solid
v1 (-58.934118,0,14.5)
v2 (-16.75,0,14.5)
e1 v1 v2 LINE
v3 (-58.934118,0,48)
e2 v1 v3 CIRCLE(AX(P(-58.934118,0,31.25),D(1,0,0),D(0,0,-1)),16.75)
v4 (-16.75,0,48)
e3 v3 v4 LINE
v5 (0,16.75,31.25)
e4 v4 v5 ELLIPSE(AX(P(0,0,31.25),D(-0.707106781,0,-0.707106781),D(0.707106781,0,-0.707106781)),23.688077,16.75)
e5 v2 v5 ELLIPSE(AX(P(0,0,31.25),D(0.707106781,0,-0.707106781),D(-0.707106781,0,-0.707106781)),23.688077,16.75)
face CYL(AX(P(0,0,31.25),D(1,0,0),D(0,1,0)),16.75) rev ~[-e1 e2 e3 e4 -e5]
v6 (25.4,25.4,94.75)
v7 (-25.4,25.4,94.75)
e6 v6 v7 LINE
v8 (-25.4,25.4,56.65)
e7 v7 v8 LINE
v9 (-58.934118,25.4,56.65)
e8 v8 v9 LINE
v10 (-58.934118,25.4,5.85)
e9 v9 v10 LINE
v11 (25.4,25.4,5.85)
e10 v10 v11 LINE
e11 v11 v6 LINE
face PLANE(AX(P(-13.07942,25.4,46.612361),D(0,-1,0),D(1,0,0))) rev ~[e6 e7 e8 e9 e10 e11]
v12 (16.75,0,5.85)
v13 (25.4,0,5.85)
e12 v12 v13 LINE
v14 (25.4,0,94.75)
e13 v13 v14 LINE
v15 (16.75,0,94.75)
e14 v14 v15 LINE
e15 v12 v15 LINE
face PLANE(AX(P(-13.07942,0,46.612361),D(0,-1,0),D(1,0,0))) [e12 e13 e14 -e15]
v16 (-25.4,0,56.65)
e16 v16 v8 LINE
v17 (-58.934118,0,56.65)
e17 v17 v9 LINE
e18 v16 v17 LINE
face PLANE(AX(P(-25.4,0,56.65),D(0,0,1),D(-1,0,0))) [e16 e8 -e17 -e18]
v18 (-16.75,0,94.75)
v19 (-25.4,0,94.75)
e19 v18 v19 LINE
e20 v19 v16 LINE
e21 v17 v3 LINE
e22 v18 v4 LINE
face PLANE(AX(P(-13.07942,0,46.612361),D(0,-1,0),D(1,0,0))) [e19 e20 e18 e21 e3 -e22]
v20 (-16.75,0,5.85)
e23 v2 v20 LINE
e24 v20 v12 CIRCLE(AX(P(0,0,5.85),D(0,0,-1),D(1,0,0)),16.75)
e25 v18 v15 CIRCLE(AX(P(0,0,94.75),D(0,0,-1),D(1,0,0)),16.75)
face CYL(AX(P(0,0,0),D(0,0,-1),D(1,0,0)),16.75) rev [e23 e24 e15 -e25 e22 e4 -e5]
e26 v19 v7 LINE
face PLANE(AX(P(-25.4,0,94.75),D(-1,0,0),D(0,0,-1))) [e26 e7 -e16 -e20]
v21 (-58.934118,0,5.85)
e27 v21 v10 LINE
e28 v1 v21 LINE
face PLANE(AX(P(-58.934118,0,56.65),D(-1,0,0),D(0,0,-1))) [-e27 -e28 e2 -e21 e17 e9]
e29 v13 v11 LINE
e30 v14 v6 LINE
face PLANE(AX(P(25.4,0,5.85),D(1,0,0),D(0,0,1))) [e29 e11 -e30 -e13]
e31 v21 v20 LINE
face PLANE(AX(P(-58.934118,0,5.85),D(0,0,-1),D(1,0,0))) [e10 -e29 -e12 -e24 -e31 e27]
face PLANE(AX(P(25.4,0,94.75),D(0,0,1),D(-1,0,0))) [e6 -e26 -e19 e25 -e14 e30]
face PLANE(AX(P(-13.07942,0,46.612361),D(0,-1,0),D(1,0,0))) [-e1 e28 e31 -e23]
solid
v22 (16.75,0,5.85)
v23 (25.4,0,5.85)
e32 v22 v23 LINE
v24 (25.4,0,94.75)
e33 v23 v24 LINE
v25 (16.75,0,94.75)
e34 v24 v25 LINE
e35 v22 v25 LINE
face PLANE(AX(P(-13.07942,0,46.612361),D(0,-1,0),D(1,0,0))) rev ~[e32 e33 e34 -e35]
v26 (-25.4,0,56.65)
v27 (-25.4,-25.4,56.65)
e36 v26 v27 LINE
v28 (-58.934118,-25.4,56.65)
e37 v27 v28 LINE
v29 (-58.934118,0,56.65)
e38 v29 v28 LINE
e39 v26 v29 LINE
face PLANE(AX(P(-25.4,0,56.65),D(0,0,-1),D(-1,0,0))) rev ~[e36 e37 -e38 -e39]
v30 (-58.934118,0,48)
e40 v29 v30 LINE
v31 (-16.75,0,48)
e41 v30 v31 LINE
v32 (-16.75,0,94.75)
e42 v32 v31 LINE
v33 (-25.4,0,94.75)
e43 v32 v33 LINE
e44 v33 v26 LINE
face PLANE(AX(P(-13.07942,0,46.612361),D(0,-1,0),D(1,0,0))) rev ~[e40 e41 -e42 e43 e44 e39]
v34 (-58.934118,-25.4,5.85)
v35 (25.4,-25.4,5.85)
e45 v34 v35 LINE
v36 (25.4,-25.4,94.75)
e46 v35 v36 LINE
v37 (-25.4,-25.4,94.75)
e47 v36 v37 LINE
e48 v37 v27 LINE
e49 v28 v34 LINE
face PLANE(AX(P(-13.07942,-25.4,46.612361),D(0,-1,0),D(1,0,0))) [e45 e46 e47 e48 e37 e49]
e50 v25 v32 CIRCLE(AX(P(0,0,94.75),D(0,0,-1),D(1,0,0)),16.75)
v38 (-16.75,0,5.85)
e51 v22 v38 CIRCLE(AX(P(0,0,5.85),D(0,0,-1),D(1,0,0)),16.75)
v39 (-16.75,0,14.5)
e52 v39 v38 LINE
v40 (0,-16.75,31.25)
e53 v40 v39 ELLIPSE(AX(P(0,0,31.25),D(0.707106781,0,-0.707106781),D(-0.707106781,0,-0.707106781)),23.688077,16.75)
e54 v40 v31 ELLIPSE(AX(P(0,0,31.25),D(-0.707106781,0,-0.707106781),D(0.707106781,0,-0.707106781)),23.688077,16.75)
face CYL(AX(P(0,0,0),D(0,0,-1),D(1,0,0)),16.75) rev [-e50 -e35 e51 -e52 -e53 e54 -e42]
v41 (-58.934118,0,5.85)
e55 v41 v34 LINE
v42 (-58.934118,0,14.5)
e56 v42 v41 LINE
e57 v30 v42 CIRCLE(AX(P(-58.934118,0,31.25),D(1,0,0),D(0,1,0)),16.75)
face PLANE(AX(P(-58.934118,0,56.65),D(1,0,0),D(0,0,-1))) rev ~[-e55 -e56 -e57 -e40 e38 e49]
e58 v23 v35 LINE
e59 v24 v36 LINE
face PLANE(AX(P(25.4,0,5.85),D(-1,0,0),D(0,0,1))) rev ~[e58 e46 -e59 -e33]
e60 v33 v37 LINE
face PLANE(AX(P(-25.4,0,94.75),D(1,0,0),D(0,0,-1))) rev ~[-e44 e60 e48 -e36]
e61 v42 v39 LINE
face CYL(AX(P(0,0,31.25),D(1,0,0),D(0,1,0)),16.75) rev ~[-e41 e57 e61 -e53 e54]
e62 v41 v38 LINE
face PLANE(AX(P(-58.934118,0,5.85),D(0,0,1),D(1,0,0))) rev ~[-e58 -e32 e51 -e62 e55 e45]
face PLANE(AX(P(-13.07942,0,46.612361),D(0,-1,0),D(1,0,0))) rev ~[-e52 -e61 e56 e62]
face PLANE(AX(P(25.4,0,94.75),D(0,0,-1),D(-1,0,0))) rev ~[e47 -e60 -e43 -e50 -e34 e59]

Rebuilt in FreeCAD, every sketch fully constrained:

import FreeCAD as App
import Part
import Sketcher

V = App.Vector
Q = App.Units.Quantity


def add_polygon(sketch, points):
    """Adds a closed chain of lines whose ends are joined by coincident constraints."""
    first, n = sketch.GeometryCount, len(points)
    for a, b in zip(points, points[1:] + points[:1]):
        sketch.addGeometry(Part.LineSegment(App.Vector(*a, 0), App.Vector(*b, 0)), False)
    for i in range(n):
        sketch.addConstraint(Sketcher.Constraint("Coincident", first + i, 2, first + (i + 1) % n, 1))

doc = App.newDocument("Part")
body = doc.addObject("PartDesign::Body", "Body")

# Sketch on XZ plane
sketch1 = doc.addObject("Sketcher::SketchObject", "Sketch")
body.addObject(sketch1)
sketch1.AttachmentSupport = (doc.XZ_Plane, [""])
sketch1.MapMode = "FlatFace"
add_polygon(sketch1, [(-25, 57), (-59, 57), (-59, 6), (25, 6), (25, 95), (-25, 95)])  # lines 0-5
sketch1.addConstraint([
    Sketcher.Constraint("Horizontal", 0),
    Sketcher.Constraint("Vertical", 1),
    Sketcher.Constraint("Horizontal", 2),
    Sketcher.Constraint("Vertical", 3),
    Sketcher.Constraint("Horizontal", 4),
    Sketcher.Constraint("Vertical", 5),
    Sketcher.Constraint("Equal", 4, 1),
    Sketcher.Constraint("DistanceX", 4, 2, 4, 1, Q("2 in")),
    Sketcher.Constraint("DistanceY", 3, 1, 3, 2, Q("3.5 in")),
    Sketcher.Constraint("DistanceX", -1, 1, 2, 2, Q("1 in")),
    Sketcher.Constraint("DistanceY", -1, 1, 0, 2, Q("56.65 mm")),
    Sketcher.Constraint("DistanceX", 0, 2, 0, 1, Q("33.534118 mm")),
])
pad1 = doc.addObject("PartDesign::Pad", "Pad")
body.addObject(pad1)
pad1.Profile = sketch1
pad1.Length = Q("1 in")
body2 = doc.addObject("PartDesign::Body", "Body001")

# Sketch on XZ plane
sketch2 = doc.addObject("Sketcher::SketchObject", "Sketch001")
body2.addObject(sketch2)
sketch2.AttachmentSupport = (doc.getObject("XZ_Plane001"), [""])
sketch2.MapMode = "FlatFace"
add_polygon(sketch2, [(-25, 57), (-59, 57), (-59, 6), (25, 6), (25, 95), (-25, 95)])  # lines 0-5
sketch2.addConstraint([
    Sketcher.Constraint("Horizontal", 0),
    Sketcher.Constraint("Vertical", 1),
    Sketcher.Constraint("Horizontal", 2),
    Sketcher.Constraint("Vertical", 3),
    Sketcher.Constraint("Horizontal", 4),
    Sketcher.Constraint("Vertical", 5),
    Sketcher.Constraint("Equal", 4, 1),
    Sketcher.Constraint("DistanceX", 4, 2, 4, 1, Q("2 in")),
    Sketcher.Constraint("DistanceY", 3, 1, 3, 2, Q("3.5 in")),
    Sketcher.Constraint("DistanceX", -1, 1, 2, 2, Q("1 in")),
    Sketcher.Constraint("DistanceY", -1, 1, 0, 2, Q("56.65 mm")),
    Sketcher.Constraint("DistanceX", 0, 2, 0, 1, Q("33.534118 mm")),
])
pad2 = doc.addObject("PartDesign::Pad", "Pad001")
body2.addObject(pad2)
pad2.Profile = sketch2
pad2.Length = Q("1 in")
pad2.Reversed = True
body3 = doc.addObject("PartDesign::Body", "Body002")

# Sketch on XY plane
sketch3 = doc.addObject("Sketcher::SketchObject", "Sketch002")
body3.addObject(sketch3)
sketch3.AttachmentSupport = (doc.getObject("XY_Plane002"), [""])
sketch3.MapMode = "FlatFace"
sketch3.addGeometry(Part.Circle(V(0, 0, 0), V(0, 0, 1), 17), False)
sketch3.addConstraint([
    Sketcher.Constraint("Coincident", 0, 3, -1, 1),
    Sketcher.Constraint("Diameter", 0, Q("33.5 mm")),
])
pad3 = doc.addObject("PartDesign::Pad", "Pad002")
body3.addObject(pad3)
pad3.Profile = sketch3
pad3.Length = Q("6 in")
doc.recompute()

body4 = doc.addObject("PartDesign::Body", "Body003")
body4.BaseFeature = body3
boolean = doc.addObject("PartDesign::Boolean", "Boolean")
body.addObject(boolean)
boolean.Type = "Cut"
boolean.addObjects([body4])
doc.recompute()

boolean2 = doc.addObject("PartDesign::Boolean", "Boolean001")
body2.addObject(boolean2)
boolean2.Type = "Cut"
boolean2.addObjects([body3])
body5 = doc.addObject("PartDesign::Body", "Body004")

# Sketch on YZ plane
sketch4 = doc.addObject("Sketcher::SketchObject", "Sketch003")
body5.addObject(sketch4)
sketch4.AttachmentSupport = (doc.getObject("YZ_Plane004"), [""])
sketch4.MapMode = "FlatFace"
sketch4.addGeometry(Part.Circle(V(0, 31, 0), V(0, 0, 1), 17), False)
sketch4.addConstraint([
    Sketcher.Constraint("PointOnObject", 0, 3, -2),
    Sketcher.Constraint("Diameter", 0, Q("33.5 mm")),
    Sketcher.Constraint("DistanceY", -1, 1, 0, 3, Q("31.25 mm")),
])
pad4 = doc.addObject("PartDesign::Pad", "Pad003")
body5.addObject(pad4)
pad4.Profile = sketch4
pad4.Length = Q("6.2 in")
pad4.Reversed = True
doc.recompute()

body6 = doc.addObject("PartDesign::Body", "Body005")
body6.BaseFeature = body5
boolean3 = doc.addObject("PartDesign::Boolean", "Boolean002")
body.addObject(boolean3)
boolean3.Type = "Cut"
boolean3.addObjects([body6])
doc.recompute()

boolean4 = doc.addObject("PartDesign::Boolean", "Boolean003")
body2.addObject(boolean4)
boolean4.Type = "Cut"
boolean4.addObjects([body5])

doc.recompute()
